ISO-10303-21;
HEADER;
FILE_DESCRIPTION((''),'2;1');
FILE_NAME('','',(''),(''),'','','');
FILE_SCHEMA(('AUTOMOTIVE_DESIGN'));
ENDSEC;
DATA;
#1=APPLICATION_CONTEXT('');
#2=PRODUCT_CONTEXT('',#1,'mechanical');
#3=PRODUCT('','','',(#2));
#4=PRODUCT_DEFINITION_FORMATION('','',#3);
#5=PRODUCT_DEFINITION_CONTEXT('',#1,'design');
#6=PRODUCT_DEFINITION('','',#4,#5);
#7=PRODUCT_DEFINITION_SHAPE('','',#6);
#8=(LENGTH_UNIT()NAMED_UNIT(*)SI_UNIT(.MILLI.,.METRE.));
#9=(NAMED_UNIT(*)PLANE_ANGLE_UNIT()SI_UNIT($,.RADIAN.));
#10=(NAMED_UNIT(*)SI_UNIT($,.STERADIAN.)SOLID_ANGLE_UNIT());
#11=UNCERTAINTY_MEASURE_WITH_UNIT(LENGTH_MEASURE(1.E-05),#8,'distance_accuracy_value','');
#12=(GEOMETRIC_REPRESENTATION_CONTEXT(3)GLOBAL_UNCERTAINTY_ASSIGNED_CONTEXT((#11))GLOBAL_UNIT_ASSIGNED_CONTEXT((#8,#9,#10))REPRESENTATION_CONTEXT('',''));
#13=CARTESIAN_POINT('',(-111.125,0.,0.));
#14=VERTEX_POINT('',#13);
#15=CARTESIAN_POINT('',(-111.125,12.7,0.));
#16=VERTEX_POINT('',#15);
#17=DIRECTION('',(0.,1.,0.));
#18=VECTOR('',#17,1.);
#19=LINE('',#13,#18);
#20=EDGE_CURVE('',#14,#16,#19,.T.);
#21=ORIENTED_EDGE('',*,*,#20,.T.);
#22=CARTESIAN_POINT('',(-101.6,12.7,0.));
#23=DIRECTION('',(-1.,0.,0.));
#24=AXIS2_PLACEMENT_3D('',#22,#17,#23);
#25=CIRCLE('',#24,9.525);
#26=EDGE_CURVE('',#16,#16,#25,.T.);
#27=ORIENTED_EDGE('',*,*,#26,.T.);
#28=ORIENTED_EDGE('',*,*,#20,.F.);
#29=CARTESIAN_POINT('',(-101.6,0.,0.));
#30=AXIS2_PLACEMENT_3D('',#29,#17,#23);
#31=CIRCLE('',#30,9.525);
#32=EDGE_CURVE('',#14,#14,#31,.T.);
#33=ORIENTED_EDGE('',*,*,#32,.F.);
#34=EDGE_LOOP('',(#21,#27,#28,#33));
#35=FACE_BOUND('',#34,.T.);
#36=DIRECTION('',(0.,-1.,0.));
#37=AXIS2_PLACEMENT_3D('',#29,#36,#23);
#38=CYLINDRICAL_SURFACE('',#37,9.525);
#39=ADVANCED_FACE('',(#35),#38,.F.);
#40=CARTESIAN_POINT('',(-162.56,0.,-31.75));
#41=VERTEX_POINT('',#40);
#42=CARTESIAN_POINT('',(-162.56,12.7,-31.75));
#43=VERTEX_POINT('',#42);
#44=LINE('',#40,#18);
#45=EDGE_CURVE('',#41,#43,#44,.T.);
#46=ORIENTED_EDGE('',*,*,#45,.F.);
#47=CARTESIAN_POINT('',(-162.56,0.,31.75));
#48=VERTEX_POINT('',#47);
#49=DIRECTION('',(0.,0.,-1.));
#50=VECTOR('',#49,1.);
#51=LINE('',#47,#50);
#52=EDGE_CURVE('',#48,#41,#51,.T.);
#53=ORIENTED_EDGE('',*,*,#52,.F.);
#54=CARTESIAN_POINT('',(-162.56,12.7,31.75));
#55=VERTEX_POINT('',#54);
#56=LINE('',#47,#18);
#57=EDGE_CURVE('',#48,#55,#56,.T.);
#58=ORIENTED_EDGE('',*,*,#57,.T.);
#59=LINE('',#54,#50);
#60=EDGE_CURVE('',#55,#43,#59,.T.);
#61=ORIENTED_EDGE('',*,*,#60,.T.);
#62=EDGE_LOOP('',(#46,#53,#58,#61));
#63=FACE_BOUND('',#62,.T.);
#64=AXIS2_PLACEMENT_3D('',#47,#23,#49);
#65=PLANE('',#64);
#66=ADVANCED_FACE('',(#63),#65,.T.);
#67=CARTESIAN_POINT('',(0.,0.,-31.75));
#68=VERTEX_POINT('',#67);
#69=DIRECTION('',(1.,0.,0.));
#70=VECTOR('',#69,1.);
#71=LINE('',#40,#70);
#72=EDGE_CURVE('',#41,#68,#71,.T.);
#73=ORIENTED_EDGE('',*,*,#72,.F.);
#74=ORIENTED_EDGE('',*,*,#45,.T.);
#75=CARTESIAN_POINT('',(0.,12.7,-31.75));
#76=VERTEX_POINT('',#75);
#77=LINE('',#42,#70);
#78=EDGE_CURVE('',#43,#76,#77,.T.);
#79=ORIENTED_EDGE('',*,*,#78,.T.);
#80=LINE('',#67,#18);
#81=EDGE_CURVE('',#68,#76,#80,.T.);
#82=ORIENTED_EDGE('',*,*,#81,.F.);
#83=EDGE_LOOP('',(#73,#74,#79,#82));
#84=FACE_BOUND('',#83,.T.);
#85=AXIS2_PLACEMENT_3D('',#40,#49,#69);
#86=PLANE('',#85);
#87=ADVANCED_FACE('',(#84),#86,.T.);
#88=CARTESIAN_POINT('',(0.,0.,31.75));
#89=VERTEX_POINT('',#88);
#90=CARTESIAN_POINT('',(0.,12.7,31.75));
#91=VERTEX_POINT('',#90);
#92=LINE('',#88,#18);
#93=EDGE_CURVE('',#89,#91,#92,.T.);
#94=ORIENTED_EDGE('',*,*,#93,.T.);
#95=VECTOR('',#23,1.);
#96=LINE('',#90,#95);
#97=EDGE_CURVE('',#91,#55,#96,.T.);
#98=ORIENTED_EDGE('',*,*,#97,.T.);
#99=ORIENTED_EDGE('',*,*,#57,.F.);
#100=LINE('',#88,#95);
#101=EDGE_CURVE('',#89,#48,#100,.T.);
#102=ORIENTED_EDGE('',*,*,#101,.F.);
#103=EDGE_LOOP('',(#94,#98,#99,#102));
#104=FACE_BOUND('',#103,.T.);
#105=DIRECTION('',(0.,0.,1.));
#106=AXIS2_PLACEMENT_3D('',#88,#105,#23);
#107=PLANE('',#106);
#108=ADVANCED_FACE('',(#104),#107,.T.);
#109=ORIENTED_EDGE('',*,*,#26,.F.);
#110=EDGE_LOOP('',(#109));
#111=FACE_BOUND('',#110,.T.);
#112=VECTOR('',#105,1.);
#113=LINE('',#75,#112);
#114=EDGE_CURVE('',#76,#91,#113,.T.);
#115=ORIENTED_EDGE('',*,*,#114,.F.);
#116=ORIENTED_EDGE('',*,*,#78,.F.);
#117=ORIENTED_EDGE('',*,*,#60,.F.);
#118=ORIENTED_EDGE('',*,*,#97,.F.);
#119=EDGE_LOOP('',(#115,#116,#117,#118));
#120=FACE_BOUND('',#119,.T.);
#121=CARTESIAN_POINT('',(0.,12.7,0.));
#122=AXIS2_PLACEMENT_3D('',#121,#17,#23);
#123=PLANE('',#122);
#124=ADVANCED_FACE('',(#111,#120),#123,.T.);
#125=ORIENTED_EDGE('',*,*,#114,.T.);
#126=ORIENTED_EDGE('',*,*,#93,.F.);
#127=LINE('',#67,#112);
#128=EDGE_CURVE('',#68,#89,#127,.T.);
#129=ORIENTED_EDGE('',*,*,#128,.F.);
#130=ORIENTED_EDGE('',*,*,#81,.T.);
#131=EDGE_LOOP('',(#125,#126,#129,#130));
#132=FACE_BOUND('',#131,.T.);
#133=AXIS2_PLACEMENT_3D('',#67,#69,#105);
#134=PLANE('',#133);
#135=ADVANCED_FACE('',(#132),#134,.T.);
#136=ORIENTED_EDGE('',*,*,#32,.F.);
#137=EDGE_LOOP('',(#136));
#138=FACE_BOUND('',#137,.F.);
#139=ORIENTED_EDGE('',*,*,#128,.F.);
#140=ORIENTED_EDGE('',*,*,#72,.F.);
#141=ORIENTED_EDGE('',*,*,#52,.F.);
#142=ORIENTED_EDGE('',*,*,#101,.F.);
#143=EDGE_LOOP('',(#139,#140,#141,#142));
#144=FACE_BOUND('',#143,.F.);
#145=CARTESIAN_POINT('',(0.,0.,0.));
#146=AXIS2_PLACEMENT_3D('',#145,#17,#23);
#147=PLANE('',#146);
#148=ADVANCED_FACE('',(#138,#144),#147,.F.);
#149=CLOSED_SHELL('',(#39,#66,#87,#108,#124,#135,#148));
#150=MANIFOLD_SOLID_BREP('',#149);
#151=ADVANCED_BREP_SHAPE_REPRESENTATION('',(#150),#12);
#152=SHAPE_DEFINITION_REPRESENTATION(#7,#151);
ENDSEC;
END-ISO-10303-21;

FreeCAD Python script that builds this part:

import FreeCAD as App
import Part
import Sketcher
from FreeCAD import Vector
Q = App.Units.Quantity

doc = App.newDocument("Part")
params = doc.addObject("Spreadsheet::Sheet", "Params")
for row, (alias, value) in enumerate([
    ("sketch1_diameter", "0.75 in"),
    ("sketch1_width", "6.4 in"),
    ("sketch1_height", "2.5 in"),
    ("pad1_length", "0.5 in"),
], start=1):
    params.set(f"A{row}", alias)
    params.set(f"B{row}", "=" + value)
    params.setAlias(f"B{row}", alias)

body = doc.addObject("PartDesign::Body", "Body")

sketch1 = body.newObject("Sketcher::SketchObject", "Sketch")
sketch1.AttachmentSupport = (doc.getObject("XZ_Plane"), [""])
sketch1.MapMode = "FlatFace"
sketch1.addGeometry([
    Part.LineSegment(Vector(-162.56, 31.75, 0), Vector(0, 31.75, 0)),
    Part.LineSegment(Vector(0, 31.75, 0), Vector(0, -31.75, 0)),
    Part.LineSegment(Vector(0, -31.75, 0), Vector(-162.56, -31.75, 0)),
    Part.LineSegment(Vector(-162.56, -31.75, 0), Vector(-162.56, 31.75, 0)),
    Part.Circle(Vector(-101.6, 0, 0), Vector(0, 0, 1), 9.525),
], False)
sketch1.addConstraint([
    Sketcher.Constraint("Coincident", 0, 2, 1, 1),
    Sketcher.Constraint("Coincident", 1, 2, 2, 1),
    Sketcher.Constraint("Coincident", 2, 2, 3, 1),
    Sketcher.Constraint("Coincident", 3, 2, 0, 1),
    Sketcher.Constraint("Horizontal", 0),
    Sketcher.Constraint("Vertical", 1),
    Sketcher.Constraint("Horizontal", 2),
    Sketcher.Constraint("Vertical", 3),
    Sketcher.Constraint("Symmetric", 0, 2, 1, 2, -1, 1),
    Sketcher.Constraint("PointOnObject", 4, 3, -1),
    Sketcher.Constraint("Diameter", 4, Q("0.75 in")),
    Sketcher.Constraint("DistanceX", 0, 1, 0, 2, Q("6.4 in")),
    Sketcher.Constraint("DistanceY", 1, 2, 1, 1, Q("2.5 in")),
    Sketcher.Constraint("DistanceX", 2, 2, 4, 3, Q("2.4 in")),
])
sketch1.setExpression("Constraints[10]", "Params.sketch1_diameter")
sketch1.setExpression("Constraints[11]", "Params.sketch1_width")
sketch1.setExpression("Constraints[12]", "Params.sketch1_height")
pad1 = body.newObject("PartDesign::Pad", "Pad")
pad1.Profile = sketch1
pad1.setExpression("Length", "Params.pad1_length")
pad1.Reversed = True

doc.recompute()
